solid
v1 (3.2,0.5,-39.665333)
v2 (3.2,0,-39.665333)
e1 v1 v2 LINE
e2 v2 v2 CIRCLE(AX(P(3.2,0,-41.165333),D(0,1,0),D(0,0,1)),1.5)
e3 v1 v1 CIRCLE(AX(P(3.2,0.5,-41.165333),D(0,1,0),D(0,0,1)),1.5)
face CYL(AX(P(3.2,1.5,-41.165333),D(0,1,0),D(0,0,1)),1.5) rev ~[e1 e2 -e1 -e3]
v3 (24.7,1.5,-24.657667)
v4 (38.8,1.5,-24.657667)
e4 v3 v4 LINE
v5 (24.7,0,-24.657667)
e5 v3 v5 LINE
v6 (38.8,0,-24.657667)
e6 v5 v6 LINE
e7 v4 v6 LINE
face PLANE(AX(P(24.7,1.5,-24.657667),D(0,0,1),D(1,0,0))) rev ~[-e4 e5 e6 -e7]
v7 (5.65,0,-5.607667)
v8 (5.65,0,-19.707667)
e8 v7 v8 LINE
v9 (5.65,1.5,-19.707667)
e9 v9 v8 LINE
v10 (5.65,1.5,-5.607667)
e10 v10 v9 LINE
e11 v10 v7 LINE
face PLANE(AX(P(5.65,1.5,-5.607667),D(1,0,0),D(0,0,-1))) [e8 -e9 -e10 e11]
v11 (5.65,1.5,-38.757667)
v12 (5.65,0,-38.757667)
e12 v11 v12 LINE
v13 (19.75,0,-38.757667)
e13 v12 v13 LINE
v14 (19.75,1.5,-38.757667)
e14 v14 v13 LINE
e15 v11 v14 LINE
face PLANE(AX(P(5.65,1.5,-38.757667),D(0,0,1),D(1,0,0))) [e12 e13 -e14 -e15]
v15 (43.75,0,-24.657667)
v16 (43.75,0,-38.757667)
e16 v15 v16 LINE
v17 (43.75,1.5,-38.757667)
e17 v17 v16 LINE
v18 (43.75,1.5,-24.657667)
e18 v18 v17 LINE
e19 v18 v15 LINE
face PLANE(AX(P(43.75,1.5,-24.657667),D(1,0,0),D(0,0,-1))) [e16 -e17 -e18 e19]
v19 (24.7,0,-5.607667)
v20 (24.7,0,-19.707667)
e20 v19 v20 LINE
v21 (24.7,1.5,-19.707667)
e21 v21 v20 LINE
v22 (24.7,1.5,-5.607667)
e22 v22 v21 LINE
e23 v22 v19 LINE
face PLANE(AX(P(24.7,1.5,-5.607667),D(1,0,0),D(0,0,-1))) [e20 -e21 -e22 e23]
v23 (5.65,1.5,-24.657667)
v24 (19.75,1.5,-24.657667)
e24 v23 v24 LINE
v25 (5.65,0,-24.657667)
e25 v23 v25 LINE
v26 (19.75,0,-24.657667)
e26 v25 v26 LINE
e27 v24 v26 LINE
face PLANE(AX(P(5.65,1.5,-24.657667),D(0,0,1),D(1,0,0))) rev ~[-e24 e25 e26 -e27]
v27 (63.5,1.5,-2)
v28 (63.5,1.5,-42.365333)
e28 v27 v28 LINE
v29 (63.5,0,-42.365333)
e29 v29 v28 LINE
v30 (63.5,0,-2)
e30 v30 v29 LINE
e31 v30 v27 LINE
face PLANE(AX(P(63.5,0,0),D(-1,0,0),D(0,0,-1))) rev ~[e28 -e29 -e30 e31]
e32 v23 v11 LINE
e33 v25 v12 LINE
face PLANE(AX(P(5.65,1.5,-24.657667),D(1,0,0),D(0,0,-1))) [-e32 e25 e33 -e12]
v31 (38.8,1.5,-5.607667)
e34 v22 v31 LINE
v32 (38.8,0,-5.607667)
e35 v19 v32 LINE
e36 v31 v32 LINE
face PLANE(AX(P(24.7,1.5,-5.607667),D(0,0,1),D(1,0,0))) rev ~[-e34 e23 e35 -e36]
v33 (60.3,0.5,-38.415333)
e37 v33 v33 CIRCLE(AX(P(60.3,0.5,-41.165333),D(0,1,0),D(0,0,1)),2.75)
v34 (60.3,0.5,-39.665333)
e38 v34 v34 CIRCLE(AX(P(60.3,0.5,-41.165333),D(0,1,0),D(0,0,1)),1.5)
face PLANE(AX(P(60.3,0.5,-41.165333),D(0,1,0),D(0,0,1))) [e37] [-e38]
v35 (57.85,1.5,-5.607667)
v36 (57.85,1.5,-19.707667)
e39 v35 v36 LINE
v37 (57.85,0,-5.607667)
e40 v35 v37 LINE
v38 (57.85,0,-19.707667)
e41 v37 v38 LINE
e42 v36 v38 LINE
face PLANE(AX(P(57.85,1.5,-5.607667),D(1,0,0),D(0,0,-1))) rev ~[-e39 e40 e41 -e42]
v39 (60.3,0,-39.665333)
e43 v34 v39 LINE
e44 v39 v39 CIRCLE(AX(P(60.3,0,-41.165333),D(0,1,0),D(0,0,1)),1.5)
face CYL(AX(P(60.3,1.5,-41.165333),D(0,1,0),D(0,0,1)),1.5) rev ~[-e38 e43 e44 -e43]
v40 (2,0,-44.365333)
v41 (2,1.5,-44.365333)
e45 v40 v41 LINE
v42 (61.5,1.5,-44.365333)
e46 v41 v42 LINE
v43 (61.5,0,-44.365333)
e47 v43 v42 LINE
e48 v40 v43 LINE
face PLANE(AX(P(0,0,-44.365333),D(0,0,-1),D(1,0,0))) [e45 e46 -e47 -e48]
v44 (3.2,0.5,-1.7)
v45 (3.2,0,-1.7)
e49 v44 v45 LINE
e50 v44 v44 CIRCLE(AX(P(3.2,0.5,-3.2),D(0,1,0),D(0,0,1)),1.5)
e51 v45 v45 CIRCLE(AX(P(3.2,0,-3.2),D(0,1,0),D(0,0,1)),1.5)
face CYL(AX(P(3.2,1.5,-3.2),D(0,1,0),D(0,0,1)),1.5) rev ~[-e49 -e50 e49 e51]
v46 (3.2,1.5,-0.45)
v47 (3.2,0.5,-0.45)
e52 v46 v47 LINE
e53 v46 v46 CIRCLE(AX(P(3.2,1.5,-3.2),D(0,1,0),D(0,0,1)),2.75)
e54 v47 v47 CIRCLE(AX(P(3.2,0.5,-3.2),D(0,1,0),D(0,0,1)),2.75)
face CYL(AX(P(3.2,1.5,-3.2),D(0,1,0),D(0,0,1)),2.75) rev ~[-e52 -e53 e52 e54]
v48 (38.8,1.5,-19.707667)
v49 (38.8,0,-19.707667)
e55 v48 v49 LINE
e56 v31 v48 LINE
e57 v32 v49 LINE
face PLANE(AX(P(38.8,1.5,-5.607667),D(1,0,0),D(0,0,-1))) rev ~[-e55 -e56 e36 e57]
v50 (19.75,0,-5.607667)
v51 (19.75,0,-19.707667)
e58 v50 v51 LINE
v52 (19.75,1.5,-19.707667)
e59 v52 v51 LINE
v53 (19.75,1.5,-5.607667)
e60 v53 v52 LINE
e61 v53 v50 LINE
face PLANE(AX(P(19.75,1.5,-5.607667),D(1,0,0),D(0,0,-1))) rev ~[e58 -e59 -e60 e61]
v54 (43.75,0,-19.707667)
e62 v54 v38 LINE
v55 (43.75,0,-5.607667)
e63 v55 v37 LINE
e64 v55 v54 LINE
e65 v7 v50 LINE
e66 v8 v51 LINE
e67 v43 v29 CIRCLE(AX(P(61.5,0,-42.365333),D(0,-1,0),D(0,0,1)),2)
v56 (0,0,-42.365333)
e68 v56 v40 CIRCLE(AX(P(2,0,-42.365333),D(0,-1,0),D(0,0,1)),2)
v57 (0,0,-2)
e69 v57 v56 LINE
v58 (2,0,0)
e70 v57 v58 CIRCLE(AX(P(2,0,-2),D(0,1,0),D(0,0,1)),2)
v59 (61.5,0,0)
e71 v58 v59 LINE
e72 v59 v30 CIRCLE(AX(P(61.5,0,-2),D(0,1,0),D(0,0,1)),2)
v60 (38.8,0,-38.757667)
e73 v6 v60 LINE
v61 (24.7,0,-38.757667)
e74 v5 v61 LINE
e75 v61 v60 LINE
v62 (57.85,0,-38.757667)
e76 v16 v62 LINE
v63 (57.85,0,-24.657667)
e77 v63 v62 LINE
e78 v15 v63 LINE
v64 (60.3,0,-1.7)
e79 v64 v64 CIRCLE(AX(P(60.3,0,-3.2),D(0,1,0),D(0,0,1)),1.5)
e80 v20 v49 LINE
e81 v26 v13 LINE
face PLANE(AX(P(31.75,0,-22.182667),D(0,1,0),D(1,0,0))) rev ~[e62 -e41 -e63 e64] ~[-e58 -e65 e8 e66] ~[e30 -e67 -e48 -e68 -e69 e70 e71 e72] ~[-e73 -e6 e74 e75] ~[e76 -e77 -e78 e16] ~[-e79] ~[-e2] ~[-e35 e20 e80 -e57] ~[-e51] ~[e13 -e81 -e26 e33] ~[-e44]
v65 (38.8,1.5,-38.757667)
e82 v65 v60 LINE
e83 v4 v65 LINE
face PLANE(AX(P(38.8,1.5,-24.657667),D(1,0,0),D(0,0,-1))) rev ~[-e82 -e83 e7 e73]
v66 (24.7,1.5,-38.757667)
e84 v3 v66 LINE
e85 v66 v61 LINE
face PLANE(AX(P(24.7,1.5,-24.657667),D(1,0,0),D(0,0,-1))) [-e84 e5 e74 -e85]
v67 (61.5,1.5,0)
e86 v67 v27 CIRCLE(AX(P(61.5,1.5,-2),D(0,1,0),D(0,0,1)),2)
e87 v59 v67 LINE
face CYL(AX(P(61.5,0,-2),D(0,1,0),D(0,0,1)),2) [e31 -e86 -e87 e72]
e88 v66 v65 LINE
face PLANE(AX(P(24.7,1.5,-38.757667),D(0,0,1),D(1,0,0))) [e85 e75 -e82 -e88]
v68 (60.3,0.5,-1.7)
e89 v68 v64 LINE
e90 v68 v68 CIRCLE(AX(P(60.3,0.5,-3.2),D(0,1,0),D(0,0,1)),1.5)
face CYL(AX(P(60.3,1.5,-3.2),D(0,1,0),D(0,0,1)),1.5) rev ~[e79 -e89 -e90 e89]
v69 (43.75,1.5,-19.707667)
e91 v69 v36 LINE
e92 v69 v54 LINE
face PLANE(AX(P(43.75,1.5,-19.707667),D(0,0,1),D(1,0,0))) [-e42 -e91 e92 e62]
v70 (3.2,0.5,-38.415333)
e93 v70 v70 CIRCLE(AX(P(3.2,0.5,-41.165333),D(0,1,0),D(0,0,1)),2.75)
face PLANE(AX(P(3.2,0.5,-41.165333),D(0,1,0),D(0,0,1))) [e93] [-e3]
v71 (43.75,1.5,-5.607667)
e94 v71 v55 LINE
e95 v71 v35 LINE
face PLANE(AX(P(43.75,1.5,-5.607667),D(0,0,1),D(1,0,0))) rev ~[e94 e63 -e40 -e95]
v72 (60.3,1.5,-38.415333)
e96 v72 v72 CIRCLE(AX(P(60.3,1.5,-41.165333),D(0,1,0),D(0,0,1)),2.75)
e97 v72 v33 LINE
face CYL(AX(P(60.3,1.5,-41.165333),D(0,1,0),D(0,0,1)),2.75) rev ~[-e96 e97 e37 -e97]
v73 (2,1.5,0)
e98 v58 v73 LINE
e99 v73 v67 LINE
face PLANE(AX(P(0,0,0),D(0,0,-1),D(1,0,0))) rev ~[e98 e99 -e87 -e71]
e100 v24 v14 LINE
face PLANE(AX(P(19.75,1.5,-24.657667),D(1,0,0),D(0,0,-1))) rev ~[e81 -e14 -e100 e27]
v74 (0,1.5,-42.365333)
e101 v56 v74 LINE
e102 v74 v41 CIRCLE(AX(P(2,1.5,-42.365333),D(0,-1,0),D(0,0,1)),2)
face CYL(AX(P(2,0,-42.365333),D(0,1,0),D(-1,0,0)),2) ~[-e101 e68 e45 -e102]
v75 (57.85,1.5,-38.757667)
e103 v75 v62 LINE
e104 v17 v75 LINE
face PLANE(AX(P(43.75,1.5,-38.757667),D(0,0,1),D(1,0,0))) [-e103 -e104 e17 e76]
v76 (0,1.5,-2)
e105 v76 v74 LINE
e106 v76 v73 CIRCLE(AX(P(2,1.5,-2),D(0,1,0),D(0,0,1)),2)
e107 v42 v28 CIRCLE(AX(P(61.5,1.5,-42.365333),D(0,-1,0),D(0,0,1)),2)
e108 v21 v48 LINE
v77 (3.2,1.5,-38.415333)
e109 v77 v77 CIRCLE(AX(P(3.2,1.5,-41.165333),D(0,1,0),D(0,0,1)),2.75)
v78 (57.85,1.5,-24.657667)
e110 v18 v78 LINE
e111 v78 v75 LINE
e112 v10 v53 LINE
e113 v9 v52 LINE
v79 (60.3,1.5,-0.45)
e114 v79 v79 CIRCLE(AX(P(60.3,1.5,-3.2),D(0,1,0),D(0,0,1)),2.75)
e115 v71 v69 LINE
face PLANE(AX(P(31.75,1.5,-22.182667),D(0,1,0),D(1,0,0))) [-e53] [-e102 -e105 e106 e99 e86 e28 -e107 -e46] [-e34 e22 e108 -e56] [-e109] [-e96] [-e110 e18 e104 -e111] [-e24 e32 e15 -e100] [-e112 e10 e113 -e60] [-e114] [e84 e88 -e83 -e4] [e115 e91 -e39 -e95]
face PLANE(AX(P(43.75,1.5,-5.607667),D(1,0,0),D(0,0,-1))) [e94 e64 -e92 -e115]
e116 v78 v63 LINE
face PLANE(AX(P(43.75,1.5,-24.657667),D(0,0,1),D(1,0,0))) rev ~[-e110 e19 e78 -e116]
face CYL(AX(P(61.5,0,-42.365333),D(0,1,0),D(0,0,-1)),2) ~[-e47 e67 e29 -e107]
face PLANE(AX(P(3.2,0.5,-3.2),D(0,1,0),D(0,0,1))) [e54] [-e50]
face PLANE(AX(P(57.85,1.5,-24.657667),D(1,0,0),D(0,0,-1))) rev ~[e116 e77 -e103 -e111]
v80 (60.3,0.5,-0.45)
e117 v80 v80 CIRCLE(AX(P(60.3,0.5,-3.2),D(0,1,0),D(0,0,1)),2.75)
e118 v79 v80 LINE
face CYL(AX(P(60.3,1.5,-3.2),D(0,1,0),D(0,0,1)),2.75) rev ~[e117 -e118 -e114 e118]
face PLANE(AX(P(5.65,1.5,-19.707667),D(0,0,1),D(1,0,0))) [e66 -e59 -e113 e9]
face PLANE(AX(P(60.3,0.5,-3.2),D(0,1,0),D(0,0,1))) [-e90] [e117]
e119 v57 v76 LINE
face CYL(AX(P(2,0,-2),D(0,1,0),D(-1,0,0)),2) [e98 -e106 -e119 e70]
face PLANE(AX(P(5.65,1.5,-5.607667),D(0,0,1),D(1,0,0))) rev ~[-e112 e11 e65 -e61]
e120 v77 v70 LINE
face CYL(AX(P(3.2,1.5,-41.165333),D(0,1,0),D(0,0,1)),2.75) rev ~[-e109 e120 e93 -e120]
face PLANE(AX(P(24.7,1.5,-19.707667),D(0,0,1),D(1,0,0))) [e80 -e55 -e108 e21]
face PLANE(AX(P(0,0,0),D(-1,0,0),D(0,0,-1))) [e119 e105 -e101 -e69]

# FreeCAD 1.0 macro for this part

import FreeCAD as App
import Part
import Sketcher

V = App.Vector
Q = App.Units.Quantity


def edges_at(feature, points):
    """Names of the edges that pass closest to the given points."""
    edges = feature.Shape.Edges
    near = lambda p: min(range(len(edges)), key=lambda i: edges[i].distToShape(Part.Vertex(*p))[0])
    return sorted({f"Edge{near(p) + 1}" for p in points})

doc = App.newDocument("Part")
params = doc.addObject("Spreadsheet::Sheet", "Params")
for row, (alias, value) in enumerate([
    ("sketch1_width", "63.5 mm"),
    ("pad1_length", "1.5 mm"),
    ("sketch2_diameter", "3 mm"),
    ("sketch2_width", "14.1 mm"),
    ("sketch3_diameter", "5.5 mm"),
    ("pocket2_length", "1 mm"),
    ("fillet_radius", "2 mm"),
], start=1):
    params.set(f"A{row}", alias)
    params.set(f"B{row}", "=" + value)
    params.setAlias(f"B{row}", alias)

body = doc.addObject("PartDesign::Body", "Body")

# Sketch on XZ plane
sketch1 = body.newObject("Sketcher::SketchObject", "Sketch")
sketch1.AttachmentSupport = (doc.getObject("XZ_Plane"), [""])
sketch1.MapMode = "FlatFace"
sketch1.addGeometry([
    Part.LineSegment(V(0, -44.365333, 0), V(0, 0, 0)),
    Part.LineSegment(V(0, 0, 0), V(63.5, 0, 0)),
    Part.LineSegment(V(63.5, 0, 0), V(63.5, -44.365333, 0)),
    Part.LineSegment(V(63.5, -44.365333, 0), V(0, -44.365333, 0)),
], False)
sketch1.addConstraint([
    Sketcher.Constraint("Coincident", 0, 2, 1, 1),
    Sketcher.Constraint("Coincident", 1, 2, 2, 1),
    Sketcher.Constraint("Coincident", 2, 2, 3, 1),
    Sketcher.Constraint("Coincident", 3, 2, 0, 1),
    Sketcher.Constraint("Vertical", 0),
    Sketcher.Constraint("Horizontal", 1),
    Sketcher.Constraint("Vertical", 2),
    Sketcher.Constraint("Horizontal", 3),
    Sketcher.Constraint("Coincident", 0, 2, -1, 1),
    Sketcher.Constraint("DistanceX", 1, 1, 1, 2, Q("63.5 mm")),
    Sketcher.Constraint("DistanceY", 0, 1, 0, 2, Q("44.365333 mm")),
])
sketch1.setExpression("Constraints[9]", "Params.sketch1_width")
pad1 = body.newObject("PartDesign::Pad", "Pad")
pad1.Profile = sketch1
pad1.setExpression("Length", "Params.pad1_length")
pad1.Reversed = True

# Sketch on XZ plane
sketch2 = body.newObject("Sketcher::SketchObject", "Sketch001")
sketch2.AttachmentSupport = (doc.getObject("XZ_Plane"), [""])
sketch2.MapMode = "FlatFace"
sketch2.AttachmentOffset = App.Placement(V(0, 0, -1.5), App.Rotation())
sketch2.addGeometry([
    Part.Circle(V(3.2, -41.165333, 0), V(0, 0, 1), 1.5),  # 0
    Part.Circle(V(60.3, -41.165333, 0), V(0, 0, 1), 1.5),  # 1
    Part.Circle(V(60.3, -3.2, 0), V(0, 0, 1), 1.5),  # 2
    Part.Circle(V(3.2, -3.2, 0), V(0, 0, 1), 1.5),  # 3
    Part.LineSegment(V(5.65, -38.757667, 0), V(5.65, -24.657667, 0)),  # 4
    Part.LineSegment(V(5.65, -24.657667, 0), V(19.75, -24.657667, 0)),  # 5
    Part.LineSegment(V(19.75, -24.657667, 0), V(19.75, -38.757667, 0)),  # 6
    Part.LineSegment(V(19.75, -38.757667, 0), V(5.65, -38.757667, 0)),  # 7
    Part.LineSegment(V(24.7, -38.757667, 0), V(24.7, -24.657667, 0)),  # 8
    Part.LineSegment(V(24.7, -24.657667, 0), V(38.8, -24.657667, 0)),  # 9
    Part.LineSegment(V(38.8, -24.657667, 0), V(38.8, -38.757667, 0)),  # 10
    Part.LineSegment(V(38.8, -38.757667, 0), V(24.7, -38.757667, 0)),  # 11
    Part.LineSegment(V(43.75, -38.757667, 0), V(43.75, -24.657667, 0)),  # 12
    Part.LineSegment(V(43.75, -24.657667, 0), V(57.85, -24.657667, 0)),  # 13
    Part.LineSegment(V(57.85, -24.657667, 0), V(57.85, -38.757667, 0)),  # 14
    Part.LineSegment(V(57.85, -38.757667, 0), V(43.75, -38.757667, 0)),  # 15
    Part.LineSegment(V(5.65, -19.707667, 0), V(5.65, -5.607667, 0)),  # 16
    Part.LineSegment(V(5.65, -5.607667, 0), V(19.75, -5.607667, 0)),  # 17
    Part.LineSegment(V(19.75, -5.607667, 0), V(19.75, -19.707667, 0)),  # 18
    Part.LineSegment(V(19.75, -19.707667, 0), V(5.65, -19.707667, 0)),  # 19
    Part.LineSegment(V(24.7, -19.707667, 0), V(24.7, -5.607667, 0)),  # 20
    Part.LineSegment(V(24.7, -5.607667, 0), V(38.8, -5.607667, 0)),  # 21
    Part.LineSegment(V(38.8, -5.607667, 0), V(38.8, -19.707667, 0)),  # 22
    Part.LineSegment(V(38.8, -19.707667, 0), V(24.7, -19.707667, 0)),  # 23
    Part.LineSegment(V(43.75, -19.707667, 0), V(43.75, -5.607667, 0)),  # 24
    Part.LineSegment(V(43.75, -5.607667, 0), V(57.85, -5.607667, 0)),  # 25
    Part.LineSegment(V(57.85, -5.607667, 0), V(57.85, -19.707667, 0)),  # 26
    Part.LineSegment(V(57.85, -19.707667, 0), V(43.75, -19.707667, 0)),  # 27
], False)
sketch2.addConstraint([
    Sketcher.Constraint("Coincident", 4, 2, 5, 1),
    Sketcher.Constraint("Coincident", 5, 2, 6, 1),
    Sketcher.Constraint("Coincident", 6, 2, 7, 1),
    Sketcher.Constraint("Coincident", 7, 2, 4, 1),
    Sketcher.Constraint("Coincident", 8, 2, 9, 1),
    Sketcher.Constraint("Coincident", 9, 2, 10, 1),
    Sketcher.Constraint("Coincident", 10, 2, 11, 1),
    Sketcher.Constraint("Coincident", 11, 2, 8, 1),
    Sketcher.Constraint("Coincident", 12, 2, 13, 1),
    Sketcher.Constraint("Coincident", 13, 2, 14, 1),
    Sketcher.Constraint("Coincident", 14, 2, 15, 1),
    Sketcher.Constraint("Coincident", 15, 2, 12, 1),
    Sketcher.Constraint("Coincident", 16, 2, 17, 1),
    Sketcher.Constraint("Coincident", 17, 2, 18, 1),
    Sketcher.Constraint("Coincident", 18, 2, 19, 1),
    Sketcher.Constraint("Coincident", 19, 2, 16, 1),
    Sketcher.Constraint("Coincident", 20, 2, 21, 1),
    Sketcher.Constraint("Coincident", 21, 2, 22, 1),
    Sketcher.Constraint("Coincident", 22, 2, 23, 1),
    Sketcher.Constraint("Coincident", 23, 2, 20, 1),
    Sketcher.Constraint("Coincident", 24, 2, 25, 1),
    Sketcher.Constraint("Coincident", 25, 2, 26, 1),
    Sketcher.Constraint("Coincident", 26, 2, 27, 1),
    Sketcher.Constraint("Coincident", 27, 2, 24, 1),
    Sketcher.Constraint("Vertical", 4),
    Sketcher.Constraint("Horizontal", 5),
    Sketcher.Constraint("Vertical", 6),
    Sketcher.Constraint("Horizontal", 7),
    Sketcher.Constraint("Vertical", 8),
    Sketcher.Constraint("Horizontal", 9),
    Sketcher.Constraint("Vertical", 10),
    Sketcher.Constraint("Horizontal", 11),
    Sketcher.Constraint("Vertical", 12),
    Sketcher.Constraint("Horizontal", 13),
    Sketcher.Constraint("Vertical", 14),
    Sketcher.Constraint("Horizontal", 15),
    Sketcher.Constraint("Vertical", 16),
    Sketcher.Constraint("Horizontal", 17),
    Sketcher.Constraint("Vertical", 18),
    Sketcher.Constraint("Horizontal", 19),
    Sketcher.Constraint("Vertical", 20),
    Sketcher.Constraint("Horizontal", 21),
    Sketcher.Constraint("Vertical", 22),
    Sketcher.Constraint("Horizontal", 23),
    Sketcher.Constraint("Vertical", 24),
    Sketcher.Constraint("Horizontal", 25),
    Sketcher.Constraint("Vertical", 26),
    Sketcher.Constraint("Horizontal", 27),
    Sketcher.Constraint("Equal", 0, 1),
    Sketcher.Constraint("Equal", 1, 2),
    Sketcher.Constraint("Equal", 2, 3),
    Sketcher.Constraint("Horizontal", 0, 3, 1, 3),
    Sketcher.Constraint("Horizontal", 2, 3, 3, 3),
    Sketcher.Constraint("Horizontal", 5, 2, 8, 2),
    Sketcher.Constraint("Horizontal", 7, 2, 10, 2),
    Sketcher.Constraint("Horizontal", 9, 2, 12, 2),
    Sketcher.Constraint("Horizontal", 11, 2, 14, 2),
    Sketcher.Constraint("Horizontal", 17, 2, 20, 2),
    Sketcher.Constraint("Horizontal", 19, 2, 22, 2),
    Sketcher.Constraint("Horizontal", 21, 2, 24, 2),
    Sketcher.Constraint("Horizontal", 23, 2, 26, 2),
    Sketcher.Constraint("Vertical", 1, 3, 2, 3),
    Sketcher.Constraint("Vertical", 0, 3, 3, 3),
    Sketcher.Constraint("Vertical", 7, 2, 16, 2),
    Sketcher.Constraint("Vertical", 6, 2, 17, 2),
    Sketcher.Constraint("Vertical", 11, 2, 20, 2),
    Sketcher.Constraint("Vertical", 10, 2, 21, 2),
    Sketcher.Constraint("Vertical", 15, 2, 24, 2),
    Sketcher.Constraint("Vertical", 14, 2, 25, 2),
    Sketcher.Constraint("Equal", 7, 9),
    Sketcher.Constraint("Equal", 11, 13),
    Sketcher.Constraint("Equal", 27, 4),
    Sketcher.Constraint("Equal", 14, 16),
    Sketcher.Constraint("Diameter", 0, Q("3 mm")),
    Sketcher.Constraint("DistanceX", 5, 1, 5, 2, Q("14.1 mm")),
    Sketcher.Constraint("DistanceX", -1, 1, 0, 3, Q("3.2 mm")),
    Sketcher.Constraint("DistanceX", -1, 1, 1, 3, Q("60.3 mm")),
    Sketcher.Constraint("DistanceY", 2, 3, -1, 1, Q("3.2 mm")),
    Sketcher.Constraint("DistanceX", -1, 1, 8, 2, Q("24.7 mm")),
    Sketcher.Constraint("DistanceX", -1, 1, 4, 2, Q("5.65 mm")),
    Sketcher.Constraint("DistanceX", -1, 1, 12, 2, Q("43.75 mm")),
    Sketcher.Constraint("DistanceY", 4, 2, 16, 2, Q("19.05 mm")),
    Sketcher.Constraint("DistanceY", 0, 3, -1, 1, Q("41.165333 mm")),
    Sketcher.Constraint("DistanceY", 4, 2, -1, 1, Q("24.657667 mm")),
])
sketch2.setExpression("Constraints[73]", "Params.sketch2_diameter")
sketch2.setExpression("Constraints[74]", "Params.sketch2_width")
pocket1 = body.newObject("PartDesign::Pocket", "Pocket")
pocket1.Profile = sketch2
pocket1.Type = "ThroughAll"
pocket1.Reversed = True

# Sketch on XZ plane
sketch3 = body.newObject("Sketcher::SketchObject", "Sketch002")
sketch3.AttachmentSupport = (doc.getObject("XZ_Plane"), [""])
sketch3.MapMode = "FlatFace"
sketch3.AttachmentOffset = App.Placement(V(0, 0, -1.5), App.Rotation())
sketch3.addGeometry([
    Part.Circle(V(3.2, -41.165333, 0), V(0, 0, 1), 2.75),
    Part.Circle(V(60.3, -41.165333, 0), V(0, 0, 1), 2.75),
    Part.Circle(V(60.3, -3.2, 0), V(0, 0, 1), 2.75),
    Part.Circle(V(3.2, -3.2, 0), V(0, 0, 1), 2.75),
], False)
sketch3.addConstraint([
    Sketcher.Constraint("Equal", 0, 1),
    Sketcher.Constraint("Equal", 1, 2),
    Sketcher.Constraint("Equal", 2, 3),
    Sketcher.Constraint("Horizontal", 0, 3, 1, 3),
    Sketcher.Constraint("Horizontal", 2, 3, 3, 3),
    Sketcher.Constraint("Vertical", 1, 3, 2, 3),
    Sketcher.Constraint("Vertical", 0, 3, 3, 3),
    Sketcher.Constraint("Diameter", 0, Q("5.5 mm")),
    Sketcher.Constraint("DistanceX", -1, 1, 0, 3, Q("3.2 mm")),
    Sketcher.Constraint("DistanceX", -1, 1, 1, 3, Q("60.3 mm")),
    Sketcher.Constraint("DistanceY", 2, 3, -1, 1, Q("3.2 mm")),
    Sketcher.Constraint("DistanceY", 0, 3, -1, 1, Q("41.165333 mm")),
])
sketch3.setExpression("Constraints[7]", "Params.sketch3_diameter")
pocket2 = body.newObject("PartDesign::Pocket", "Pocket001")
pocket2.Profile = sketch3
pocket2.setExpression("Length", "Params.pocket2_length")
pocket2.Reversed = True
doc.recompute()

fillet = body.newObject("PartDesign::Fillet", "Fillet")
fillet.Base = (pocket2, edges_at(pocket2, [
    (0, 0.75, -44.365),
    (63.5, 0.75, -44.365),
    (63.5, 0.75, 0),
    (0, 0.75, 0),
]))
fillet.setExpression("Radius", "Params.fillet_radius")

doc.recompute()
